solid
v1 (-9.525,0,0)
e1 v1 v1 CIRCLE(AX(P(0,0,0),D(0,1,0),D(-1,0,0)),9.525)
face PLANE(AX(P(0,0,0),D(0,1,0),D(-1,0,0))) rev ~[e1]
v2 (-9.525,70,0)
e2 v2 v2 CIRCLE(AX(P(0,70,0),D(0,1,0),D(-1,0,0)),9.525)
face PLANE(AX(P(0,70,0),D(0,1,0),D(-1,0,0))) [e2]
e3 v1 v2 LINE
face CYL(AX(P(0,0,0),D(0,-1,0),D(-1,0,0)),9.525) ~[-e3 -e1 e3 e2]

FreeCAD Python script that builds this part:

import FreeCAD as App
import Part
import Sketcher
Q = App.Units.Quantity

doc = App.newDocument("Part")
body = doc.addObject("PartDesign::Body", "Body")

sketch1 = body.newObject("Sketcher::SketchObject", "Sketch")
sketch1.AttachmentSupport = (doc.getObject("XZ_Plane"), [""])
sketch1.MapMode = "FlatFace"
sketch1.addGeometry(Part.Circle(App.Vector(0, 0, 0), App.Vector(0, 0, 1), 10), False)
sketch1.addConstraint(Sketcher.Constraint("Coincident", 0, 3, -1, 1))
sketch1.addConstraint(Sketcher.Constraint("Diameter", 0, Q("0.75 in")))
pad1 = body.newObject("PartDesign::Pad", "Pad")
pad1.Profile = sketch1
pad1.Length = Q("2.7559055 in")
pad1.Reversed = True

doc.recompute()
